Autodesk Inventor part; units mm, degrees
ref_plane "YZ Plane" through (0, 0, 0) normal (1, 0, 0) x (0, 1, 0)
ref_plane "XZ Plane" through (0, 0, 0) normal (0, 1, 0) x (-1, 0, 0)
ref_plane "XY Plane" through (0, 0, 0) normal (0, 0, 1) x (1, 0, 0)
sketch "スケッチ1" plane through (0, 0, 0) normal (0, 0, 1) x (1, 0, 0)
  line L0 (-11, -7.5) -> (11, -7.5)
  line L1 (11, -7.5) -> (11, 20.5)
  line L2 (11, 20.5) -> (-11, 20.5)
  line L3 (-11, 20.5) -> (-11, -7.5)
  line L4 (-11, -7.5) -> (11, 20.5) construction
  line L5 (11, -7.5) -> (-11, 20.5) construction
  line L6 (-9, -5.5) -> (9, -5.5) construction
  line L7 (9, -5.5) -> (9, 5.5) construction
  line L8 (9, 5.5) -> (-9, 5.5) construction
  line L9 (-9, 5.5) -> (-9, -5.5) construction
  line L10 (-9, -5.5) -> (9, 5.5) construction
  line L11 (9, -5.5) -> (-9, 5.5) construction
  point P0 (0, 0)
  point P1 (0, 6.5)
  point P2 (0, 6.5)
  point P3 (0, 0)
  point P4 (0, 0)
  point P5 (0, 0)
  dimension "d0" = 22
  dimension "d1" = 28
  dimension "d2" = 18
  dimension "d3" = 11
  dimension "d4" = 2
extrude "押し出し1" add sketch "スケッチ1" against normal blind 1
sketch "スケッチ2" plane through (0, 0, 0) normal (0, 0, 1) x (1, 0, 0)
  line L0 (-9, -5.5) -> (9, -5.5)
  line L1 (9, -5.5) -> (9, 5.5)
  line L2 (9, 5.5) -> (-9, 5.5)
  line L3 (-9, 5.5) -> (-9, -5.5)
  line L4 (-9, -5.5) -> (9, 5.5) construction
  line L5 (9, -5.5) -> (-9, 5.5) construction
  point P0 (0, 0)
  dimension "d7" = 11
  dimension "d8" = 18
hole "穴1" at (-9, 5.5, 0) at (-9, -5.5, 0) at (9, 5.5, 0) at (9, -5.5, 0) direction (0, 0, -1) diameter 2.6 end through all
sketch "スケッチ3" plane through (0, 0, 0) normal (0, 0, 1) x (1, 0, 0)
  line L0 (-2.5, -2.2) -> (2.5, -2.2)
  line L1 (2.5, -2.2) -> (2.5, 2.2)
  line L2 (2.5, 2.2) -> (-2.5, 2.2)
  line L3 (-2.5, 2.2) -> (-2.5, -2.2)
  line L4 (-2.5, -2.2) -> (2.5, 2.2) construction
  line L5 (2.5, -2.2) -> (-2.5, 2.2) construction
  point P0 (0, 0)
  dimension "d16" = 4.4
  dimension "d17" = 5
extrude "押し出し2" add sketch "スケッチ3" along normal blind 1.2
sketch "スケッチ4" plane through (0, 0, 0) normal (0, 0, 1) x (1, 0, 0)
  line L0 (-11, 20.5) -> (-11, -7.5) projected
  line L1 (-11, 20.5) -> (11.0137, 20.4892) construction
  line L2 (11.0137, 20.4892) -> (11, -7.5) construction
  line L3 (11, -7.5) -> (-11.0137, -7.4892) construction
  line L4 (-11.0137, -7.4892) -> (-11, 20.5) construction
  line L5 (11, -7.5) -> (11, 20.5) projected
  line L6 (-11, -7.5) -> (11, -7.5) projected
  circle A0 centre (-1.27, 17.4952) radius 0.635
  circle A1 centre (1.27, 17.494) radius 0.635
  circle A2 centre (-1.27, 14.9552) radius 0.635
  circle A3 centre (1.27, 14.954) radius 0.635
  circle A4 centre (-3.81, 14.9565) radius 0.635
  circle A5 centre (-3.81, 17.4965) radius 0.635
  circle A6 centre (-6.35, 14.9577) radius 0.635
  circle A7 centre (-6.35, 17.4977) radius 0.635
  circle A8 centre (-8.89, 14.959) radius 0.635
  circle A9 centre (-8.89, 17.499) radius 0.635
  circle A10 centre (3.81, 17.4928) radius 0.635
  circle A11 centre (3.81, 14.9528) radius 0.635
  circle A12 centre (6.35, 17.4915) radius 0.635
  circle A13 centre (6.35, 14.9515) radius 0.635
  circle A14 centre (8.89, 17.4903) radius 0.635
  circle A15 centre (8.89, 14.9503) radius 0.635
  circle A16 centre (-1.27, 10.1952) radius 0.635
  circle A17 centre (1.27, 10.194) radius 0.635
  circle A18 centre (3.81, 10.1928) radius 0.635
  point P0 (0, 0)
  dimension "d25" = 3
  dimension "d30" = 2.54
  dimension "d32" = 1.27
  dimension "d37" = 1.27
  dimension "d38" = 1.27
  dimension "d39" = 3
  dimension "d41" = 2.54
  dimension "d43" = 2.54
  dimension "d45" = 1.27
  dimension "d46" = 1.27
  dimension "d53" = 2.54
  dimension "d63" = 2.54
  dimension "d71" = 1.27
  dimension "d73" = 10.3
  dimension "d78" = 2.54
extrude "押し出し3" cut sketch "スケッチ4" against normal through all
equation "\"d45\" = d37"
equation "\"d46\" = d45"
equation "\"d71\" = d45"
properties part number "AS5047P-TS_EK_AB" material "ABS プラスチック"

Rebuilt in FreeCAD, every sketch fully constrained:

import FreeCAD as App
import Part
import Sketcher

V = App.Vector
Q = App.Units.Quantity

doc = App.newDocument("Part")
params = doc.addObject("Spreadsheet::Sheet", "Params")
for row, (alias, value) in enumerate([
    ("sketch1_width", "22 mm"),
    ("sketch1_height", "28 mm"),
    ("pad1_length", "1 mm"),
    ("sketch2_diameter", "2.6 mm"),
    ("hole_diameter", "2.6 mm"),
    ("sketch3_width", "5 mm"),
    ("sketch3_height", "4.4 mm"),
    ("pad2_length", "1.2 mm"),
    ("sketch4_diameter", "1.27 mm"),
], start=1):
    params.set(f"A{row}", alias)
    params.set(f"B{row}", "=" + value)
    params.setAlias(f"B{row}", alias)

body = doc.addObject("PartDesign::Body", "Body")

sketch1 = doc.addObject("Sketcher::SketchObject", "Sketch")
body.addObject(sketch1)
sketch1.AttachmentSupport = (doc.XY_Plane, [""])
sketch1.MapMode = "FlatFace"
sketch1.addGeometry([
    Part.LineSegment(V(-11, 20, 0), V(-11, -8, 0)),
    Part.LineSegment(V(-11, -8, 0), V(11, -8, 0)),
    Part.LineSegment(V(11, -8, 0), V(11, 20, 0)),
    Part.LineSegment(V(11, 20, 0), V(-11, 20, 0)),
], False)
sketch1.addConstraint([
    Sketcher.Constraint("Coincident", 0, 2, 1, 1),
    Sketcher.Constraint("Coincident", 1, 2, 2, 1),
    Sketcher.Constraint("Coincident", 2, 2, 3, 1),
    Sketcher.Constraint("Coincident", 3, 2, 0, 1),
    Sketcher.Constraint("Vertical", 0),
    Sketcher.Constraint("Horizontal", 1),
    Sketcher.Constraint("Vertical", 2),
    Sketcher.Constraint("Horizontal", 3),
    Sketcher.Constraint("DistanceX", 1, 1, 1, 2, Q("22 mm")),
    Sketcher.Constraint("DistanceY", 0, 2, 0, 1, Q("28 mm")),
    Sketcher.Constraint("DistanceX", 0, 2, -1, 1, Q("11 mm")),
    Sketcher.Constraint("DistanceY", 0, 2, -1, 1, Q("7.5 mm")),
])
sketch1.setExpression("Constraints[8]", "Params.sketch1_width")
sketch1.setExpression("Constraints[9]", "Params.sketch1_height")
pad1 = doc.addObject("PartDesign::Pad", "Pad")
body.addObject(pad1)
pad1.Profile = sketch1
pad1.setExpression("Length", "Params.pad1_length")
pad1.Reversed = True

sketch2 = doc.addObject("Sketcher::SketchObject", "Sketch001")
body.addObject(sketch2)
sketch2.AttachmentSupport = (doc.XY_Plane, [""])
sketch2.MapMode = "FlatFace"
sketch2.addGeometry([
    Part.Circle(V(-9, 5.5, 0), V(0, 0, 1), 1.3),
    Part.Circle(V(-9, -5.5, 0), V(0, 0, 1), 1.3),
    Part.Circle(V(9, 5.5, 0), V(0, 0, 1), 1.3),
    Part.Circle(V(9, -5.5, 0), V(0, 0, 1), 1.3),
], False)
sketch2.addConstraint([
    Sketcher.Constraint("Equal", 0, 1),
    Sketcher.Constraint("Equal", 1, 2),
    Sketcher.Constraint("Equal", 2, 3),
    Sketcher.Constraint("Symmetric", 1, 3, 2, 3, -1, 1),
    Sketcher.Constraint("Symmetric", 0, 3, 3, 3, -1, 1),
    Sketcher.Constraint("Symmetric", 0, 3, 2, 3, -2),
    Sketcher.Constraint("Diameter", 0, Q("2.6 mm")),
    Sketcher.Constraint("DistanceX", 0, 3, -1, 1, Q("9 mm")),
    Sketcher.Constraint("DistanceY", 1, 3, 0, 3, Q("11 mm")),
])
sketch2.setExpression("Constraints[6]", "Params.sketch2_diameter")
doc.recompute()
hole = doc.addObject("PartDesign::Hole", "Hole")
body.addObject(hole)
hole.Profile = sketch2
hole.ThreadType = "None"
hole.setExpression("Diameter", "Params.hole_diameter")
hole.DepthType = "ThroughAll"

sketch3 = doc.addObject("Sketcher::SketchObject", "Sketch002")
body.addObject(sketch3)
sketch3.AttachmentSupport = (doc.XY_Plane, [""])
sketch3.MapMode = "FlatFace"
sketch3.addGeometry([
    Part.LineSegment(V(-2.5, 2.2, 0), V(-2.5, -2.2, 0)),
    Part.LineSegment(V(-2.5, -2.2, 0), V(2.5, -2.2, 0)),
    Part.LineSegment(V(2.5, -2.2, 0), V(2.5, 2.2, 0)),
    Part.LineSegment(V(2.5, 2.2, 0), V(-2.5, 2.2, 0)),
], False)
sketch3.addConstraint([
    Sketcher.Constraint("Coincident", 0, 2, 1, 1),
    Sketcher.Constraint("Coincident", 1, 2, 2, 1),
    Sketcher.Constraint("Coincident", 2, 2, 3, 1),
    Sketcher.Constraint("Coincident", 3, 2, 0, 1),
    Sketcher.Constraint("Vertical", 0),
    Sketcher.Constraint("Horizontal", 1),
    Sketcher.Constraint("Vertical", 2),
    Sketcher.Constraint("Horizontal", 3),
    Sketcher.Constraint("Symmetric", 0, 2, 2, 2, -1, 1),
    Sketcher.Constraint("DistanceX", 1, 1, 1, 2, Q("5 mm")),
    Sketcher.Constraint("DistanceY", 0, 2, 0, 1, Q("4.4 mm")),
])
sketch3.setExpression("Constraints[9]", "Params.sketch3_width")
sketch3.setExpression("Constraints[10]", "Params.sketch3_height")
pad2 = doc.addObject("PartDesign::Pad", "Pad001")
body.addObject(pad2)
pad2.Profile = sketch3
pad2.setExpression("Length", "Params.pad2_length")

sketch4 = doc.addObject("Sketcher::SketchObject", "Sketch003")
body.addObject(sketch4)
sketch4.AttachmentSupport = (doc.XY_Plane, [""])
sketch4.MapMode = "FlatFace"
sketch4.addGeometry([
    Part.Circle(V(-1.3, 17.5, 0), V(0, 0, 1), 0.6),
    Part.Circle(V(1.3, 17.5, 0), V(0, 0, 1), 0.6),
    Part.Circle(V(-1.3, 15, 0), V(0, 0, 1), 0.6),
    Part.Circle(V(1.3, 15, 0), V(0, 0, 1), 0.6),
    Part.Circle(V(-3.8, 15, 0), V(0, 0, 1), 0.6),
    Part.Circle(V(-3.8, 17.5, 0), V(0, 0, 1), 0.6),
    Part.Circle(V(-6.3, 15, 0), V(0, 0, 1), 0.6),
    Part.Circle(V(-6.3, 17.5, 0), V(0, 0, 1), 0.6),
    Part.Circle(V(-8.9, 15, 0), V(0, 0, 1), 0.6),
    Part.Circle(V(-8.9, 17.5, 0), V(0, 0, 1), 0.6),
    Part.Circle(V(3.8, 17.5, 0), V(0, 0, 1), 0.6),
    Part.Circle(V(3.8, 15, 0), V(0, 0, 1), 0.6),
    Part.Circle(V(6.3, 17.5, 0), V(0, 0, 1), 0.6),
    Part.Circle(V(6.3, 15, 0), V(0, 0, 1), 0.6),
    Part.Circle(V(8.9, 17.5, 0), V(0, 0, 1), 0.6),
    Part.Circle(V(8.9, 15, 0), V(0, 0, 1), 0.6),
    Part.Circle(V(-1.3, 10.2, 0), V(0, 0, 1), 0.6),
    Part.Circle(V(1.3, 10.2, 0), V(0, 0, 1), 0.6),
    Part.Circle(V(3.8, 10.2, 0), V(0, 0, 1), 0.6),
], False)
sketch4.addConstraint([
    Sketcher.Constraint("Equal", 0, 1),
    Sketcher.Constraint("Equal", 1, 2),
    Sketcher.Constraint("Equal", 2, 3),
    Sketcher.Constraint("Equal", 3, 4),
    Sketcher.Constraint("Equal", 4, 5),
    Sketcher.Constraint("Equal", 5, 6),
    Sketcher.Constraint("Equal", 6, 7),
    Sketcher.Constraint("Equal", 7, 8),
    Sketcher.Constraint("Equal", 8, 9),
    Sketcher.Constraint("Equal", 9, 10),
    Sketcher.Constraint("Equal", 10, 11),
    Sketcher.Constraint("Equal", 11, 12),
    Sketcher.Constraint("Equal", 12, 13),
    Sketcher.Constraint("Equal", 13, 14),
    Sketcher.Constraint("Equal", 14, 15),
    Sketcher.Constraint("Equal", 15, 16),
    Sketcher.Constraint("Equal", 16, 17),
    Sketcher.Constraint("Equal", 17, 18),
    Sketcher.Constraint("Vertical", 0, 3, 2, 3),
    Sketcher.Constraint("Vertical", 1, 3, 3, 3),
    Sketcher.Constraint("Vertical", 4, 3, 5, 3),
    Sketcher.Constraint("Vertical", 6, 3, 7, 3),
    Sketcher.Constraint("Vertical", 8, 3, 9, 3),
    Sketcher.Constraint("Vertical", 10, 3, 11, 3),
    Sketcher.Constraint("Vertical", 12, 3, 13, 3),
    Sketcher.Constraint("Vertical", 14, 3, 15, 3),
    Sketcher.Constraint("Vertical", 2, 3, 16, 3),
    Sketcher.Constraint("Vertical", 3, 3, 17, 3),
    Sketcher.Constraint("Vertical", 11, 3, 18, 3),
    Sketcher.Constraint("Diameter", 0, Q("1.27 mm")),
    Sketcher.Constraint("DistanceX", 0, 3, -1, 1, Q("1.27 mm")),
    Sketcher.Constraint("DistanceX", -1, 1, 1, 3, Q("1.27 mm")),
    Sketcher.Constraint("DistanceY", 2, 3, 0, 3, Q("2.54 mm")),
    Sketcher.Constraint("DistanceY", 3, 3, 1, 3, Q("2.54 mm")),
    Sketcher.Constraint("DistanceX", 4, 3, 2, 3, Q("2.54 mm")),
    Sketcher.Constraint("DistanceY", 4, 3, 5, 3, Q("2.54 mm")),
    Sketcher.Constraint("DistanceX", 6, 3, 4, 3, Q("2.54 mm")),
    Sketcher.Constraint("DistanceY", 6, 3, 7, 3, Q("2.54 mm")),
    Sketcher.Constraint("DistanceX", 8, 3, 6, 3, Q("2.54 mm")),
    Sketcher.Constraint("DistanceY", 8, 3, 9, 3, Q("2.54 mm")),
    Sketcher.Constraint("DistanceX", 1, 3, 10, 3, Q("2.54 mm")),
    Sketcher.Constraint("DistanceY", 11, 3, 10, 3, Q("2.54 mm")),
    Sketcher.Constraint("DistanceX", 10, 3, 12, 3, Q("2.54 mm")),
    Sketcher.Constraint("DistanceY", 13, 3, 12, 3, Q("2.54 mm")),
    Sketcher.Constraint("DistanceX", 12, 3, 14, 3, Q("2.54 mm")),
    Sketcher.Constraint("DistanceY", 15, 3, 14, 3, Q("2.54 mm")),
    Sketcher.Constraint("DistanceY", 16, 3, 2, 3, Q("4.76 mm")),
    Sketcher.Constraint("DistanceY", 17, 3, 3, 3, Q("4.76 mm")),
    Sketcher.Constraint("DistanceY", 18, 3, 11, 3, Q("4.76 mm")),
    Sketcher.Constraint("DistanceY", -1, 1, 1, 3, Q("17.494 mm")),
    Sketcher.Constraint("DistanceY", -1, 1, 8, 3, Q("14.959 mm")),
    Sketcher.Constraint("DistanceY", -1, 1, 0, 3, Q("17.4952 mm")),
    Sketcher.Constraint("DistanceY", -1, 1, 4, 3, Q("14.9565 mm")),
    Sketcher.Constraint("DistanceY", -1, 1, 6, 3, Q("14.9577 mm")),
    Sketcher.Constraint("DistanceY", -1, 1, 10, 3, Q("17.4928 mm")),
    Sketcher.Constraint("DistanceY", -1, 1, 12, 3, Q("17.4915 mm")),
    Sketcher.Constraint("DistanceY", -1, 1, 14, 3, Q("17.4903 mm")),
])
sketch4.setExpression("Constraints[29]", "Params.sketch4_diameter")
pocket1 = doc.addObject("PartDesign::Pocket", "Pocket")
body.addObject(pocket1)
pocket1.Profile = sketch4
pocket1.Type = "ThroughAll"

doc.recompute()
